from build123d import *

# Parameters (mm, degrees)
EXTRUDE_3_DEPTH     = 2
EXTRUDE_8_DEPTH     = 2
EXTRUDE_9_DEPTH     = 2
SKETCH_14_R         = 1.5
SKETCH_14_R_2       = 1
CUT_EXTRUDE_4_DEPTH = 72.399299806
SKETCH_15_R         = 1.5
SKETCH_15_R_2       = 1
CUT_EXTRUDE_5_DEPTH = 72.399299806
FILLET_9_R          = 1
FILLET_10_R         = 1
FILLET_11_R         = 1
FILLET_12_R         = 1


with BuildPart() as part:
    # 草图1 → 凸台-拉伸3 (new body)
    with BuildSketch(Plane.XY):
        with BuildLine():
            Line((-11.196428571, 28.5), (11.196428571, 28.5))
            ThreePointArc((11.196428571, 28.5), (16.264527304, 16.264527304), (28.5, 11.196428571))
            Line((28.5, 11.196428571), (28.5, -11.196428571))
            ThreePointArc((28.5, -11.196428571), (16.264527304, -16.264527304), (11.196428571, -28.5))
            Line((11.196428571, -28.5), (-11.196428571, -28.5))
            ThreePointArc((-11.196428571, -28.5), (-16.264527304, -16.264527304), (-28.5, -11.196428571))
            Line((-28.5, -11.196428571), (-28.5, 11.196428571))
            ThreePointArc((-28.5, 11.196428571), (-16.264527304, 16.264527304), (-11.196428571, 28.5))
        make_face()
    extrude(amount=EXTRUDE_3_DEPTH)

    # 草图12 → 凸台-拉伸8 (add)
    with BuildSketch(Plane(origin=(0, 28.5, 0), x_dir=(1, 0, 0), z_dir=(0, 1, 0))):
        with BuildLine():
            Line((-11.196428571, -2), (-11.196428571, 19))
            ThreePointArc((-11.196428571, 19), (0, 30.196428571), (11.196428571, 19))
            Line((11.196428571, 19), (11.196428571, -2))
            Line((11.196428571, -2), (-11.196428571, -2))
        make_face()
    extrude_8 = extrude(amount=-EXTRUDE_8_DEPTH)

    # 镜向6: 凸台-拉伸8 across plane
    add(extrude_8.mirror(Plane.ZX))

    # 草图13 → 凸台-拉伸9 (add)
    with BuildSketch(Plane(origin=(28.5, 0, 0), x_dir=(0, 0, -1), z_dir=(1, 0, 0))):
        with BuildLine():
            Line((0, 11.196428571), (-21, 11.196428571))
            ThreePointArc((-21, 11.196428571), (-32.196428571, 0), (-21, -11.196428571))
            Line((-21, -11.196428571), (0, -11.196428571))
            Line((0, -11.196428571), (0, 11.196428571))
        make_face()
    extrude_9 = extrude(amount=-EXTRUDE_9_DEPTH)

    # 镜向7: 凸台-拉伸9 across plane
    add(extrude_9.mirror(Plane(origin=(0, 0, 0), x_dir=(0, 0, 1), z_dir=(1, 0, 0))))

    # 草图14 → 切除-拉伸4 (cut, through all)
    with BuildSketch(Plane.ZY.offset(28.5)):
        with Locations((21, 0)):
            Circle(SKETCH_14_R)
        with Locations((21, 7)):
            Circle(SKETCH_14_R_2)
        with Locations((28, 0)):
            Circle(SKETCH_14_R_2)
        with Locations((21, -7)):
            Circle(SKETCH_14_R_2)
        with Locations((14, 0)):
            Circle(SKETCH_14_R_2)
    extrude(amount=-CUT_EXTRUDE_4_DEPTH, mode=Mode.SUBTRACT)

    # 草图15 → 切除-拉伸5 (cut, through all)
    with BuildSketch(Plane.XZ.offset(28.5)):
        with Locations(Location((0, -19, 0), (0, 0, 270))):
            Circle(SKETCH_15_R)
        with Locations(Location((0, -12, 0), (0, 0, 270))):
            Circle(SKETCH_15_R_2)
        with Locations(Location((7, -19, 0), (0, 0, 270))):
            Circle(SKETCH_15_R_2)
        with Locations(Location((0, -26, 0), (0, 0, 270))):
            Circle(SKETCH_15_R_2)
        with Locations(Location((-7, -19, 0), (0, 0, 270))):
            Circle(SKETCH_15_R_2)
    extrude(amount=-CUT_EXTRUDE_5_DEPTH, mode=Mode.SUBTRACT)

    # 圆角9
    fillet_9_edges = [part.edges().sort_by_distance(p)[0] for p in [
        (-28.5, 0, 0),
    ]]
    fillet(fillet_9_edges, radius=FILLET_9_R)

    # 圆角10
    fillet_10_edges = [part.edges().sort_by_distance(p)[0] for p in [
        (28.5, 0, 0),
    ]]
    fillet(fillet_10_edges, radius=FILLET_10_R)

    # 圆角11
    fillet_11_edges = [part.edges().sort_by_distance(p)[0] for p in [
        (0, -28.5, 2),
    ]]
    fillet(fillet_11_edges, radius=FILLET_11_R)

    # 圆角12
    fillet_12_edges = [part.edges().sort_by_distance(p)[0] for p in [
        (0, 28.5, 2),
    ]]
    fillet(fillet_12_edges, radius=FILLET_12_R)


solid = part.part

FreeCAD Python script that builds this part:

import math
import FreeCAD as App
import Part
import Sketcher
from FreeCAD import Vector
Q = App.Units.Quantity


def edges_at(feature, points):
    """Names of the edges that pass closest to the given points."""
    edges = feature.Shape.Edges
    near = lambda p: min(range(len(edges)), key=lambda i: edges[i].distToShape(Part.Vertex(*p))[0])
    return sorted({f"Edge{near(p) + 1}" for p in points})

doc = App.newDocument("Part")
body = doc.addObject("PartDesign::Body", "Body")

# Sketch on XY plane
sketch1 = body.newObject("Sketcher::SketchObject", "Sketch")
sketch1.AttachmentSupport = (doc.getObject("XY_Plane"), [""])
sketch1.MapMode = "FlatFace"
sketch1.addGeometry(Part.LineSegment(Vector(11, 28, 0), Vector(-11, 28, 0)), False)
sketch1.addGeometry(Part.ArcOfCircle(Part.Circle(Vector(-29, 29, 0), Vector(0, 0, 1), 17), math.radians(-90), math.radians(0)), False)
sketch1.addGeometry(Part.LineSegment(Vector(-28, 11, 0), Vector(-28, -11, 0)), False)
sketch1.addGeometry(Part.ArcOfCircle(Part.Circle(Vector(-29, -29, 0), Vector(0, 0, 1), 17), math.radians(0), math.radians(90)), False)
sketch1.addGeometry(Part.LineSegment(Vector(-11, -28, 0), Vector(11, -28, 0)), False)
sketch1.addGeometry(Part.ArcOfCircle(Part.Circle(Vector(29, -29, 0), Vector(0, 0, 1), 17), math.radians(90), math.radians(180)), False)
sketch1.addGeometry(Part.LineSegment(Vector(28, -11, 0), Vector(28, 11, 0)), False)
sketch1.addGeometry(Part.ArcOfCircle(Part.Circle(Vector(29, 29, 0), Vector(0, 0, 1), 17), math.radians(-180), math.radians(-90)), False)
sketch1.addConstraint(Sketcher.Constraint("Coincident", 0, 2, 1, 2))
sketch1.addConstraint(Sketcher.Constraint("Coincident", 1, 1, 2, 1))
sketch1.addConstraint(Sketcher.Constraint("Coincident", 2, 2, 3, 2))
sketch1.addConstraint(Sketcher.Constraint("Coincident", 3, 1, 4, 1))
sketch1.addConstraint(Sketcher.Constraint("Coincident", 4, 2, 5, 2))
sketch1.addConstraint(Sketcher.Constraint("Coincident", 5, 1, 6, 1))
sketch1.addConstraint(Sketcher.Constraint("Coincident", 6, 2, 7, 2))
sketch1.addConstraint(Sketcher.Constraint("Coincident", 7, 1, 0, 1))
sketch1.addConstraint(Sketcher.Constraint("Horizontal", 0))
sketch1.addConstraint(Sketcher.Constraint("Vertical", 2))
sketch1.addConstraint(Sketcher.Constraint("Horizontal", 4))
sketch1.addConstraint(Sketcher.Constraint("Vertical", 6))
sketch1.addConstraint(Sketcher.Constraint("Equal", 1, 3))
sketch1.addConstraint(Sketcher.Constraint("Equal", 3, 5))
sketch1.addConstraint(Sketcher.Constraint("Equal", 5, 7))
sketch1.addConstraint(Sketcher.Constraint("Symmetric", 1, 3, 5, 3, -1, 1))
sketch1.addConstraint(Sketcher.Constraint("Symmetric", 3, 3, 7, 3, -1, 1))
sketch1.addConstraint(Sketcher.Constraint("Symmetric", 3, 3, 5, 3, -2))
sketch1.addConstraint(Sketcher.Constraint("Horizontal", 7, 3, 0, 2))
sketch1.addConstraint(Sketcher.Constraint("Horizontal", 5, 3, 3, 1))
sketch1.addConstraint(Sketcher.Constraint("Vertical", 3, 3, 1, 1))
sketch1.addConstraint(Sketcher.Constraint("Vertical", 7, 3, 5, 1))
sketch1.addConstraint(Sketcher.Constraint("Equal", 4, 2))
sketch1.addConstraint(Sketcher.Constraint("DistanceY", 3, 3, 1, 3, Q("57 mm")))
sketch1.addConstraint(Sketcher.Constraint("Radius", 1, Q("17.303571 mm")))
pad1 = body.newObject("PartDesign::Pad", "Pad")
pad1.Profile = sketch1
pad1.Length = 2

# Sketch on XZ plane
sketch2 = body.newObject("Sketcher::SketchObject", "Sketch001")
sketch2.AttachmentSupport = (doc.getObject("XZ_Plane"), [""])
sketch2.MapMode = "FlatFace"
sketch2.AttachmentOffset = App.Placement(Vector(0, 0, -28.5), App.Rotation())
sketch2.addGeometry(Part.LineSegment(Vector(-11, -19, 0), Vector(-11, 2, 0)), False)
sketch2.addGeometry(Part.LineSegment(Vector(-11, 2, 0), Vector(11, 2, 0)), False)
sketch2.addGeometry(Part.LineSegment(Vector(11, 2, 0), Vector(11, -19, 0)), False)
sketch2.addGeometry(Part.ArcOfCircle(Part.Circle(Vector(0, -19, 0), Vector(0, 0, 1), 11), math.radians(180), math.radians(360)), False)
sketch2.addConstraint(Sketcher.Constraint("Coincident", 0, 2, 1, 1))
sketch2.addConstraint(Sketcher.Constraint("Coincident", 1, 2, 2, 1))
sketch2.addConstraint(Sketcher.Constraint("Tangent", 2, 2, 3, 2))
sketch2.addConstraint(Sketcher.Constraint("Tangent", 3, 1, 0, 1))
sketch2.addConstraint(Sketcher.Constraint("Vertical", 0))
sketch2.addConstraint(Sketcher.Constraint("Horizontal", 1))
sketch2.addConstraint(Sketcher.Constraint("Vertical", 2))
sketch2.addConstraint(Sketcher.Constraint("PointOnObject", 3, 3, -2))
sketch2.addConstraint(Sketcher.Constraint("DistanceY", 0, 1, 0, 2, Q("21 mm")))
sketch2.addConstraint(Sketcher.Constraint("DistanceY", 3, 3, -1, 1, Q("19 mm")))
sketch2.addConstraint(Sketcher.Constraint("Radius", 3, Q("11.196429 mm")))
pad2 = body.newObject("PartDesign::Pad", "Pad001")
pad2.Profile = sketch2
pad2.Length = 2
doc.recompute()

mirrored = body.newObject("PartDesign::Mirrored", "Mirrored")
mirrored.Originals = [pad2]
mirrored.MirrorPlane = (doc.getObject("XZ_Plane"), [""])
body.Tip = mirrored

# Sketch on YZ plane
sketch3 = body.newObject("Sketcher::SketchObject", "Sketch002")
sketch3.AttachmentSupport = (doc.getObject("YZ_Plane"), [""])
sketch3.MapMode = "FlatFace"
sketch3.AttachmentOffset = App.Placement(Vector(0, 0, 28.5), App.Rotation())
sketch3.addGeometry(Part.LineSegment(Vector(11, 0, 0), Vector(11, 21, 0)), False)
sketch3.addGeometry(Part.ArcOfCircle(Part.Circle(Vector(0, 21, 0), Vector(0, 0, 1), 11), math.radians(0), math.radians(180)), False)
sketch3.addGeometry(Part.LineSegment(Vector(-11, 21, 0), Vector(-11, 0, 0)), False)
sketch3.addGeometry(Part.LineSegment(Vector(-11, 0, 0), Vector(11, 0, 0)), False)
sketch3.addConstraint(Sketcher.Constraint("Tangent", 0, 2, 1, 1))
sketch3.addConstraint(Sketcher.Constraint("Tangent", 1, 2, 2, 1))
sketch3.addConstraint(Sketcher.Constraint("Coincident", 2, 2, 3, 1))
sketch3.addConstraint(Sketcher.Constraint("Coincident", 3, 2, 0, 1))
sketch3.addConstraint(Sketcher.Constraint("Vertical", 0))
sketch3.addConstraint(Sketcher.Constraint("Vertical", 2))
sketch3.addConstraint(Sketcher.Constraint("Horizontal", 3))
sketch3.addConstraint(Sketcher.Constraint("Symmetric", 2, 2, 3, 2, -1, 1))
sketch3.addConstraint(Sketcher.Constraint("DistanceY", 0, 1, 0, 2, Q("21 mm")))
sketch3.addConstraint(Sketcher.Constraint("Radius", 1, Q("11.196429 mm")))
pad3 = body.newObject("PartDesign::Pad", "Pad002")
pad3.Profile = sketch3
pad3.Length = 2
pad3.Reversed = True
doc.recompute()

mirrored2 = body.newObject("PartDesign::Mirrored", "Mirrored001")
mirrored2.Originals = [pad3]
mirrored2.MirrorPlane = (doc.getObject("YZ_Plane"), [""])
body.Tip = mirrored2

# Sketch on YZ plane
sketch4 = body.newObject("Sketcher::SketchObject", "Sketch003")
sketch4.AttachmentSupport = (doc.getObject("YZ_Plane"), [""])
sketch4.MapMode = "FlatFace"
sketch4.AttachmentOffset = App.Placement(Vector(0, 0, -28.5), App.Rotation())
sketch4.addGeometry(Part.Circle(Vector(0, 21, 0), Vector(0, 0, 1), 1.5), False)
sketch4.addGeometry(Part.Circle(Vector(7, 21, 0), Vector(0, 0, 1), 1), False)
sketch4.addGeometry(Part.Circle(Vector(0, 28, 0), Vector(0, 0, 1), 1), False)
sketch4.addGeometry(Part.Circle(Vector(-7, 21, 0), Vector(0, 0, 1), 1), False)
sketch4.addGeometry(Part.Circle(Vector(0, 14, 0), Vector(0, 0, 1), 1), False)
sketch4.addConstraint(Sketcher.Constraint("Equal", 1, 2))
sketch4.addConstraint(Sketcher.Constraint("Equal", 2, 3))
sketch4.addConstraint(Sketcher.Constraint("Equal", 3, 4))
sketch4.addConstraint(Sketcher.Constraint("Symmetric", 1, 3, 3, 3, -2))
sketch4.addConstraint(Sketcher.Constraint("PointOnObject", 0, 3, -2))
sketch4.addConstraint(Sketcher.Constraint("PointOnObject", 2, 3, -2))
sketch4.addConstraint(Sketcher.Constraint("PointOnObject", 4, 3, -2))
sketch4.addConstraint(Sketcher.Constraint("Horizontal", 0, 3, 1, 3))
sketch4.addConstraint(Sketcher.Constraint("Diameter", 0, Q("3 mm")))
sketch4.addConstraint(Sketcher.Constraint("Diameter", 1, Q("2 mm")))
sketch4.addConstraint(Sketcher.Constraint("DistanceY", -1, 1, 0, 3, Q("21 mm")))
sketch4.addConstraint(Sketcher.Constraint("DistanceX", -1, 1, 1, 3, Q("7 mm")))
sketch4.addConstraint(Sketcher.Constraint("DistanceY", -1, 1, 2, 3, Q("28 mm")))
sketch4.addConstraint(Sketcher.Constraint("DistanceY", -1, 1, 4, 3, Q("14 mm")))
pocket1 = body.newObject("PartDesign::Pocket", "Pocket")
pocket1.Profile = sketch4
pocket1.Type = "ThroughAll"
pocket1.Reversed = True

# Sketch on XZ plane
sketch5 = body.newObject("Sketcher::SketchObject", "Sketch004")
sketch5.AttachmentSupport = (doc.getObject("XZ_Plane"), [""])
sketch5.MapMode = "FlatFace"
sketch5.AttachmentOffset = App.Placement(Vector(0, 0, 28.5), App.Rotation())
sketch5.addGeometry(Part.Circle(Vector(0, -19, 0), Vector(0, 0, 1), 1.5), False)
sketch5.addGeometry(Part.Circle(Vector(0, -12, 0), Vector(0, 0, 1), 1), False)
sketch5.addGeometry(Part.Circle(Vector(7, -19, 0), Vector(0, 0, 1), 1), False)
sketch5.addGeometry(Part.Circle(Vector(0, -26, 0), Vector(0, 0, 1), 1), False)
sketch5.addGeometry(Part.Circle(Vector(-7, -19, 0), Vector(0, 0, 1), 1), False)
sketch5.addConstraint(Sketcher.Constraint("Equal", 1, 2))
sketch5.addConstraint(Sketcher.Constraint("Equal", 2, 3))
sketch5.addConstraint(Sketcher.Constraint("Equal", 3, 4))
sketch5.addConstraint(Sketcher.Constraint("Symmetric", 2, 3, 4, 3, -2))
sketch5.addConstraint(Sketcher.Constraint("PointOnObject", 0, 3, -2))
sketch5.addConstraint(Sketcher.Constraint("PointOnObject", 1, 3, -2))
sketch5.addConstraint(Sketcher.Constraint("PointOnObject", 3, 3, -2))
sketch5.addConstraint(Sketcher.Constraint("Horizontal", 0, 3, 2, 3))
sketch5.addConstraint(Sketcher.Constraint("Diameter", 0, Q("3 mm")))
sketch5.addConstraint(Sketcher.Constraint("Diameter", 1, Q("2 mm")))
sketch5.addConstraint(Sketcher.Constraint("DistanceY", 0, 3, -1, 1, Q("19 mm")))
sketch5.addConstraint(Sketcher.Constraint("DistanceY", 1, 3, -1, 1, Q("12 mm")))
sketch5.addConstraint(Sketcher.Constraint("DistanceX", -1, 1, 2, 3, Q("7 mm")))
sketch5.addConstraint(Sketcher.Constraint("DistanceY", 3, 3, -1, 1, Q("26 mm")))
pocket2 = body.newObject("PartDesign::Pocket", "Pocket001")
pocket2.Profile = sketch5
pocket2.Type = "ThroughAll"
doc.recompute()

fillet = body.newObject("PartDesign::Fillet", "Fillet")
fillet.Base = (pocket2, edges_at(pocket2, [(-28.5, 0, 0)]))
fillet.Radius = 1
doc.recompute()

fillet2 = body.newObject("PartDesign::Fillet", "Fillet001")
fillet2.Base = (fillet, edges_at(fillet, [(28.5, 0, 0)]))
fillet2.Radius = 1
doc.recompute()

fillet3 = body.newObject("PartDesign::Fillet", "Fillet002")
fillet3.Base = (fillet2, edges_at(fillet2, [(0, -28.5, 2)]))
fillet3.Radius = 1
doc.recompute()

fillet4 = body.newObject("PartDesign::Fillet", "Fillet003")
fillet4.Base = (fillet3, edges_at(fillet3, [(0, 28.5, 2)]))
fillet4.Radius = 1

doc.recompute()
